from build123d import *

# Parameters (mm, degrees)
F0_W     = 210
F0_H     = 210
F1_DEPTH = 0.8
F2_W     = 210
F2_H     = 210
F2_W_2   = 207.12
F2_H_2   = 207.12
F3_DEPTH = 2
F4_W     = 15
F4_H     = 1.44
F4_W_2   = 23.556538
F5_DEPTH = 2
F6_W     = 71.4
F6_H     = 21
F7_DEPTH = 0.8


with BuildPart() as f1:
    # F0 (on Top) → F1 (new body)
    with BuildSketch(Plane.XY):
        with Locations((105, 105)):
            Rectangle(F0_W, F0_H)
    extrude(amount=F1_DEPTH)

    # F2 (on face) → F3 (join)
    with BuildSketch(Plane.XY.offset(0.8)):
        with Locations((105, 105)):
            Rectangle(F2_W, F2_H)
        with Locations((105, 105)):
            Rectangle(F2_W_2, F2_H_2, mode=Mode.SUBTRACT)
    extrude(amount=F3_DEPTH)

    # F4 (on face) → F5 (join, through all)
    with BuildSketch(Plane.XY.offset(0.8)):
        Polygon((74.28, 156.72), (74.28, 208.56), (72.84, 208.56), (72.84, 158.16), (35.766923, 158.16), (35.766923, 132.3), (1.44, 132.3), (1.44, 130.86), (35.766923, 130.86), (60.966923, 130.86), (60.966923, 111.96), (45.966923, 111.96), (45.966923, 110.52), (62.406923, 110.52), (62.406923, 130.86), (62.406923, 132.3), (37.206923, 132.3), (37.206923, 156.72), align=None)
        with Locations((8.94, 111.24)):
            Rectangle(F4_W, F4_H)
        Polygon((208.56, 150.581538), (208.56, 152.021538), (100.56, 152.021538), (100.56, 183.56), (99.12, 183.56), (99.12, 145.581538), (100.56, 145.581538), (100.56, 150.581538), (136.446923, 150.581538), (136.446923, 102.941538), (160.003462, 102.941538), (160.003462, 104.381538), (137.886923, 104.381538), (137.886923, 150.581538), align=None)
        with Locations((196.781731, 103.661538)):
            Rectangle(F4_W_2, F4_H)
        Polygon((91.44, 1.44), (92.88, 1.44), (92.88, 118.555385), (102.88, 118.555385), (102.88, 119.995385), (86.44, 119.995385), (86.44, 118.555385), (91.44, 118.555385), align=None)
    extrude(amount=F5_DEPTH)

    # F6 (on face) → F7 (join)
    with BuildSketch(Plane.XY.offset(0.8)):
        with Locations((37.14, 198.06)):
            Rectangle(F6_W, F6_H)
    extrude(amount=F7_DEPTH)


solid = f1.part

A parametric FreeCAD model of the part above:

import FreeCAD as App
import Part
import Sketcher

V = App.Vector

doc = App.newDocument("Part")
body = doc.addObject("PartDesign::Body", "Body")

# Sketch on XY plane
sketch1 = doc.addObject("Sketcher::SketchObject", "Sketch")
body.addObject(sketch1)
sketch1.AttachmentSupport = (doc.XY_Plane, [""])
sketch1.MapMode = "FlatFace"
sketch1.addGeometry([
    Part.LineSegment(V(0, 210, 0), V(0, 0, 0)),
    Part.LineSegment(V(0, 0, 0), V(210, 0, 0)),
    Part.LineSegment(V(210, 0, 0), V(210, 210, 0)),
    Part.LineSegment(V(210, 210, 0), V(0, 210, 0)),
], False)
sketch1.addConstraint([
    Sketcher.Constraint("Coincident", 0, 2, 1, 1),
    Sketcher.Constraint("Coincident", 1, 2, 2, 1),
    Sketcher.Constraint("Coincident", 2, 2, 3, 1),
    Sketcher.Constraint("Coincident", 3, 2, 0, 1),
    Sketcher.Constraint("Vertical", 0),
    Sketcher.Constraint("Horizontal", 1),
    Sketcher.Constraint("Vertical", 2),
    Sketcher.Constraint("Horizontal", 3),
    Sketcher.Constraint("Coincident", 0, 2, -1, 1),
    Sketcher.Constraint("Equal", 3, 0),
    Sketcher.Constraint("DistanceX", 1, 1, 1, 2, 210.0),
])
pad1 = doc.addObject("PartDesign::Pad", "Pad")
body.addObject(pad1)
pad1.Profile = sketch1
pad1.Length = 0.8

# Sketch on XY plane
sketch2 = doc.addObject("Sketcher::SketchObject", "Sketch001")
body.addObject(sketch2)
sketch2.AttachmentSupport = (doc.XY_Plane, [""])
sketch2.MapMode = "FlatFace"
sketch2.AttachmentOffset = App.Placement(V(0, 0, 0.8), App.Rotation())
sketch2.addGeometry([
    Part.LineSegment(V(0, 210, 0), V(0, 0, 0)),  # 0
    Part.LineSegment(V(0, 0, 0), V(210, 0, 0)),  # 1
    Part.LineSegment(V(210, 0, 0), V(210, 210, 0)),  # 2
    Part.LineSegment(V(210, 210, 0), V(0, 210, 0)),  # 3
    Part.LineSegment(V(209, 1, 0), V(1, 1, 0)),  # 4
    Part.LineSegment(V(1, 1, 0), V(1, 209, 0)),  # 5
    Part.LineSegment(V(1, 209, 0), V(209, 209, 0)),  # 6
    Part.LineSegment(V(209, 209, 0), V(209, 1, 0)),  # 7
], False)
sketch2.addConstraint([
    Sketcher.Constraint("Coincident", 0, 2, 1, 1),
    Sketcher.Constraint("Coincident", 1, 2, 2, 1),
    Sketcher.Constraint("Coincident", 2, 2, 3, 1),
    Sketcher.Constraint("Coincident", 3, 2, 0, 1),
    Sketcher.Constraint("Coincident", 4, 2, 5, 1),
    Sketcher.Constraint("Coincident", 5, 2, 6, 1),
    Sketcher.Constraint("Coincident", 6, 2, 7, 1),
    Sketcher.Constraint("Coincident", 7, 2, 4, 1),
    Sketcher.Constraint("Vertical", 0),
    Sketcher.Constraint("Horizontal", 1),
    Sketcher.Constraint("Vertical", 2),
    Sketcher.Constraint("Horizontal", 3),
    Sketcher.Constraint("Horizontal", 4),
    Sketcher.Constraint("Vertical", 5),
    Sketcher.Constraint("Horizontal", 6),
    Sketcher.Constraint("Vertical", 7),
    Sketcher.Constraint("Coincident", 0, 2, -1, 1),
    Sketcher.Constraint("Equal", 3, 0),
    Sketcher.Constraint("Equal", 6, 5),
    Sketcher.Constraint("DistanceX", 1, 1, 1, 2, 210.0),
    Sketcher.Constraint("DistanceX", 4, 2, 4, 1, 207.12),
    Sketcher.Constraint("DistanceX", -1, 1, 4, 2, 1.44),
    Sketcher.Constraint("DistanceY", -1, 1, 4, 2, 1.44),
])
pad2 = doc.addObject("PartDesign::Pad", "Pad001")
body.addObject(pad2)
pad2.Profile = sketch2
pad2.Length = 2

# Sketch on XY plane
sketch3 = doc.addObject("Sketcher::SketchObject", "Sketch002")
body.addObject(sketch3)
sketch3.AttachmentSupport = (doc.XY_Plane, [""])
sketch3.MapMode = "FlatFace"
sketch3.AttachmentOffset = App.Placement(V(0, 0, 0.8), App.Rotation())
sketch3.addGeometry([
    Part.LineSegment(V(74.3, 156.7, 0), V(74.3, 208.6, 0)),  # 0
    Part.LineSegment(V(74.3, 208.6, 0), V(72.8, 208.6, 0)),  # 1
    Part.LineSegment(V(72.8, 208.6, 0), V(72.8, 158.2, 0)),  # 2
    Part.LineSegment(V(72.8, 158.2, 0), V(35.8, 158.2, 0)),  # 3
    Part.LineSegment(V(35.8, 158.2, 0), V(35.8, 132.3, 0)),  # 4
    Part.LineSegment(V(35.8, 132.3, 0), V(1.4, 132.3, 0)),  # 5
    Part.LineSegment(V(1.4, 132.3, 0), V(1.4, 130.9, 0)),  # 6
    Part.LineSegment(V(1.4, 130.9, 0), V(61, 130.9, 0)),  # 7
    Part.LineSegment(V(61, 130.9, 0), V(61, 112, 0)),  # 8
    Part.LineSegment(V(61, 112, 0), V(46, 112, 0)),  # 9
    Part.LineSegment(V(46, 112, 0), V(46, 110.5, 0)),  # 10
    Part.LineSegment(V(46, 110.5, 0), V(62.4, 110.5, 0)),  # 11
    Part.LineSegment(V(62.4, 110.5, 0), V(62.4, 132.3, 0)),  # 12
    Part.LineSegment(V(62.4, 132.3, 0), V(37.2, 132.3, 0)),  # 13
    Part.LineSegment(V(37.2, 132.3, 0), V(37.2, 156.7, 0)),  # 14
    Part.LineSegment(V(37.2, 156.7, 0), V(74.3, 156.7, 0)),  # 15
    Part.LineSegment(V(1.4, 112, 0), V(1.4, 110.5, 0)),  # 16
    Part.LineSegment(V(1.4, 110.5, 0), V(16.4, 110.5, 0)),  # 17
    Part.LineSegment(V(16.4, 110.5, 0), V(16.4, 112, 0)),  # 18
    Part.LineSegment(V(16.4, 112, 0), V(1.4, 112, 0)),  # 19
    Part.LineSegment(V(208.6, 150.6, 0), V(208.6, 152, 0)),  # 20
    Part.LineSegment(V(208.6, 152, 0), V(100.6, 152, 0)),  # 21
    Part.LineSegment(V(100.6, 152, 0), V(100.6, 183.6, 0)),  # 22
    Part.LineSegment(V(100.6, 183.6, 0), V(99.1, 183.6, 0)),  # 23
    Part.LineSegment(V(99.1, 183.6, 0), V(99.1, 145.6, 0)),  # 24
    Part.LineSegment(V(99.1, 145.6, 0), V(100.6, 145.6, 0)),  # 25
    Part.LineSegment(V(100.6, 145.6, 0), V(100.6, 150.6, 0)),  # 26
    Part.LineSegment(V(100.6, 150.6, 0), V(136.4, 150.6, 0)),  # 27
    Part.LineSegment(V(136.4, 150.6, 0), V(136.4, 102.9, 0)),  # 28
    Part.LineSegment(V(136.4, 102.9, 0), V(160, 102.9, 0)),  # 29
    Part.LineSegment(V(160, 102.9, 0), V(160, 104.4, 0)),  # 30
    Part.LineSegment(V(160, 104.4, 0), V(137.9, 104.4, 0)),  # 31
    Part.LineSegment(V(137.9, 104.4, 0), V(137.9, 150.6, 0)),  # 32
    Part.LineSegment(V(137.9, 150.6, 0), V(208.6, 150.6, 0)),  # 33
    Part.LineSegment(V(185, 104.4, 0), V(185, 102.9, 0)),  # 34
    Part.LineSegment(V(185, 102.9, 0), V(208.6, 102.9, 0)),  # 35
    Part.LineSegment(V(208.6, 102.9, 0), V(208.6, 104.4, 0)),  # 36
    Part.LineSegment(V(208.6, 104.4, 0), V(185, 104.4, 0)),  # 37
    Part.LineSegment(V(91.4, 1.4, 0), V(92.9, 1.4, 0)),  # 38
    Part.LineSegment(V(92.9, 1.4, 0), V(92.9, 118.6, 0)),  # 39
    Part.LineSegment(V(92.9, 118.6, 0), V(102.9, 118.6, 0)),  # 40
    Part.LineSegment(V(102.9, 118.6, 0), V(102.9, 120, 0)),  # 41
    Part.LineSegment(V(102.9, 120, 0), V(86.4, 120, 0)),  # 42
    Part.LineSegment(V(86.4, 120, 0), V(86.4, 118.6, 0)),  # 43
    Part.LineSegment(V(86.4, 118.6, 0), V(91.4, 118.6, 0)),  # 44
    Part.LineSegment(V(91.4, 118.6, 0), V(91.4, 1.4, 0)),  # 45
], False)
sketch3.addConstraint([
    Sketcher.Constraint("Coincident", 0, 2, 1, 1),
    Sketcher.Constraint("Coincident", 1, 2, 2, 1),
    Sketcher.Constraint("Coincident", 2, 2, 3, 1),
    Sketcher.Constraint("Coincident", 3, 2, 4, 1),
    Sketcher.Constraint("Coincident", 4, 2, 5, 1),
    Sketcher.Constraint("Coincident", 5, 2, 6, 1),
    Sketcher.Constraint("Coincident", 6, 2, 7, 1),
    Sketcher.Constraint("Coincident", 7, 2, 8, 1),
    Sketcher.Constraint("Coincident", 8, 2, 9, 1),
    Sketcher.Constraint("Coincident", 9, 2, 10, 1),
    Sketcher.Constraint("Coincident", 10, 2, 11, 1),
    Sketcher.Constraint("Coincident", 11, 2, 12, 1),
    Sketcher.Constraint("Coincident", 12, 2, 13, 1),
    Sketcher.Constraint("Coincident", 13, 2, 14, 1),
    Sketcher.Constraint("Coincident", 14, 2, 15, 1),
    Sketcher.Constraint("Coincident", 15, 2, 0, 1),
    Sketcher.Constraint("Coincident", 16, 2, 17, 1),
    Sketcher.Constraint("Coincident", 17, 2, 18, 1),
    Sketcher.Constraint("Coincident", 18, 2, 19, 1),
    Sketcher.Constraint("Coincident", 19, 2, 16, 1),
    Sketcher.Constraint("Coincident", 20, 2, 21, 1),
    Sketcher.Constraint("Coincident", 21, 2, 22, 1),
    Sketcher.Constraint("Coincident", 22, 2, 23, 1),
    Sketcher.Constraint("Coincident", 23, 2, 24, 1),
    Sketcher.Constraint("Coincident", 24, 2, 25, 1),
    Sketcher.Constraint("Coincident", 25, 2, 26, 1),
    Sketcher.Constraint("Coincident", 26, 2, 27, 1),
    Sketcher.Constraint("Coincident", 27, 2, 28, 1),
    Sketcher.Constraint("Coincident", 28, 2, 29, 1),
    Sketcher.Constraint("Coincident", 29, 2, 30, 1),
    Sketcher.Constraint("Coincident", 30, 2, 31, 1),
    Sketcher.Constraint("Coincident", 31, 2, 32, 1),
    Sketcher.Constraint("Coincident", 32, 2, 33, 1),
    Sketcher.Constraint("Coincident", 33, 2, 20, 1),
    Sketcher.Constraint("Coincident", 34, 2, 35, 1),
    Sketcher.Constraint("Coincident", 35, 2, 36, 1),
    Sketcher.Constraint("Coincident", 36, 2, 37, 1),
    Sketcher.Constraint("Coincident", 37, 2, 34, 1),
    Sketcher.Constraint("Coincident", 38, 2, 39, 1),
    Sketcher.Constraint("Coincident", 39, 2, 40, 1),
    Sketcher.Constraint("Coincident", 40, 2, 41, 1),
    Sketcher.Constraint("Coincident", 41, 2, 42, 1),
    Sketcher.Constraint("Coincident", 42, 2, 43, 1),
    Sketcher.Constraint("Coincident", 43, 2, 44, 1),
    Sketcher.Constraint("Coincident", 44, 2, 45, 1),
    Sketcher.Constraint("Coincident", 45, 2, 38, 1),
    Sketcher.Constraint("Vertical", 0),
    Sketcher.Constraint("Horizontal", 1),
    Sketcher.Constraint("Vertical", 2),
    Sketcher.Constraint("Horizontal", 3),
    Sketcher.Constraint("Vertical", 4),
    Sketcher.Constraint("Horizontal", 5),
    Sketcher.Constraint("Vertical", 6),
    Sketcher.Constraint("Horizontal", 7),
    Sketcher.Constraint("Vertical", 8),
    Sketcher.Constraint("Horizontal", 9),
    Sketcher.Constraint("Vertical", 10),
    Sketcher.Constraint("Horizontal", 11),
    Sketcher.Constraint("Vertical", 12),
    Sketcher.Constraint("Horizontal", 13),
    Sketcher.Constraint("Vertical", 14),
    Sketcher.Constraint("Horizontal", 15),
    Sketcher.Constraint("Vertical", 16),
    Sketcher.Constraint("Horizontal", 17),
    Sketcher.Constraint("Vertical", 18),
    Sketcher.Constraint("Horizontal", 19),
    Sketcher.Constraint("Vertical", 20),
    Sketcher.Constraint("Horizontal", 21),
    Sketcher.Constraint("Vertical", 22),
    Sketcher.Constraint("Horizontal", 23),
    Sketcher.Constraint("Vertical", 24),
    Sketcher.Constraint("Horizontal", 25),
    Sketcher.Constraint("Vertical", 26),
    Sketcher.Constraint("Horizontal", 27),
    Sketcher.Constraint("Vertical", 28),
    Sketcher.Constraint("Horizontal", 29),
    Sketcher.Constraint("Vertical", 30),
    Sketcher.Constraint("Horizontal", 31),
    Sketcher.Constraint("Vertical", 32),
    Sketcher.Constraint("Horizontal", 33),
    Sketcher.Constraint("Vertical", 34),
    Sketcher.Constraint("Horizontal", 35),
    Sketcher.Constraint("Vertical", 36),
    Sketcher.Constraint("Horizontal", 37),
    Sketcher.Constraint("Horizontal", 38),
    Sketcher.Constraint("Vertical", 39),
    Sketcher.Constraint("Horizontal", 40),
    Sketcher.Constraint("Vertical", 41),
    Sketcher.Constraint("Horizontal", 42),
    Sketcher.Constraint("Vertical", 43),
    Sketcher.Constraint("Horizontal", 44),
    Sketcher.Constraint("Vertical", 45),
    Sketcher.Constraint("Horizontal", 5, 2, 12, 2),
    Sketcher.Constraint("Horizontal", 11, 2, 16, 2),
    Sketcher.Constraint("Horizontal", 9, 2, 18, 2),
    Sketcher.Constraint("Horizontal", 27, 2, 32, 2),
    Sketcher.Constraint("Horizontal", 29, 2, 34, 2),
    Sketcher.Constraint("Horizontal", 31, 2, 36, 2),
    Sketcher.Constraint("Horizontal", 40, 2, 43, 2),
    Sketcher.Constraint("Vertical", 6, 2, 16, 2),
    Sketcher.Constraint("Vertical", 22, 2, 25, 2),
    Sketcher.Constraint("Vertical", 33, 2, 35, 2),
    Sketcher.Constraint("Equal", 3, 15),
    Sketcher.Constraint("Equal", 9, 17),
    Sketcher.Constraint("Equal", 1, 23),
    Sketcher.Constraint("Equal", 29, 35),
    Sketcher.Constraint("Equal", 25, 38),
    Sketcher.Constraint("Equal", 11, 42),
    Sketcher.Constraint("Equal", 38, 6),
    Sketcher.Constraint("Equal", 6, 10),
    Sketcher.Constraint("Equal", 18, 20),
    Sketcher.Constraint("Equal", 44, 26),
    Sketcher.Constraint("Equal", 20, 30),
    Sketcher.Constraint("Equal", 36, 41),
    Sketcher.Constraint("DistanceX", 9, 2, 9, 1, 15.0),
    Sketcher.Constraint("DistanceX", 21, 2, 21, 1, 108.0),
    Sketcher.Constraint("DistanceX", 40, 1, 40, 2, 10.0),
    Sketcher.Constraint("DistanceX", 44, 1, 44, 2, 5.0),
    Sketcher.Constraint("DistanceX", 13, 2, 13, 1, 25.2),
    Sketcher.Constraint("DistanceY", 2, 2, 2, 1, 50.4),
    Sketcher.Constraint("DistanceY", 8, 2, 8, 1, 18.9),
    Sketcher.Constraint("DistanceY", 32, 1, 32, 2, 46.2),
    Sketcher.Constraint("DistanceY", 22, 2, 0, 2, 25.0),
    Sketcher.Constraint("DistanceX", 29, 2, 34, 2, 25.0),
    Sketcher.Constraint("DistanceX", 1, 2, 1, 1, 1.44),
    Sketcher.Constraint("DistanceY", 0, 1, 0, 2, 51.84),
    Sketcher.Constraint("DistanceY", 4, 2, 4, 1, 25.86),
    Sketcher.Constraint("DistanceY", -1, 1, 4, 2, 132.3),
    Sketcher.Constraint("DistanceX", 5, 2, 2, 2, 71.4),
    Sketcher.Constraint("DistanceX", -1, 1, 0, 2, 74.28),
    Sketcher.Constraint("DistanceX", -1, 1, 20, 2, 208.56),
    Sketcher.Constraint("DistanceX", -1, 1, 38, 2, 92.88),
    Sketcher.Constraint("DistanceY", -1, 1, 38, 2, 1.44),
    Sketcher.Constraint("DistanceX", 28, 2, 31, 2, 1.44),
    Sketcher.Constraint("DistanceX", 29, 1, 29, 2, 23.556539),
    Sketcher.Constraint("DistanceX", 3, 2, 3, 1, 37.073077),
    Sketcher.Constraint("DistanceY", 22, 1, 22, 2, 31.538462),
    Sketcher.Constraint("DistanceY", 39, 1, 39, 2, 117.115385),
])
pad3 = doc.addObject("PartDesign::Pad", "Pad002")
body.addObject(pad3)
pad3.Profile = sketch3
pad3.Length = 2

# Sketch on XY plane
sketch4 = doc.addObject("Sketcher::SketchObject", "Sketch003")
body.addObject(sketch4)
sketch4.AttachmentSupport = (doc.XY_Plane, [""])
sketch4.MapMode = "FlatFace"
sketch4.AttachmentOffset = App.Placement(V(0, 0, 0.8), App.Rotation())
sketch4.addGeometry([
    Part.LineSegment(V(1, 209, 0), V(1, 188, 0)),
    Part.LineSegment(V(1, 188, 0), V(73, 188, 0)),
    Part.LineSegment(V(73, 188, 0), V(73, 209, 0)),
    Part.LineSegment(V(73, 209, 0), V(1, 209, 0)),
], False)
sketch4.addConstraint([
    Sketcher.Constraint("Coincident", 0, 2, 1, 1),
    Sketcher.Constraint("Coincident", 1, 2, 2, 1),
    Sketcher.Constraint("Coincident", 2, 2, 3, 1),
    Sketcher.Constraint("Coincident", 3, 2, 0, 1),
    Sketcher.Constraint("Vertical", 0),
    Sketcher.Constraint("Horizontal", 1),
    Sketcher.Constraint("Vertical", 2),
    Sketcher.Constraint("Horizontal", 3),
    Sketcher.Constraint("DistanceY", 0, 2, 0, 1, 21.0),
    Sketcher.Constraint("DistanceX", 1, 1, 1, 2, 71.4),
    Sketcher.Constraint("DistanceX", -1, 1, 0, 2, 1.44),
    Sketcher.Constraint("DistanceY", -1, 1, 0, 2, 187.56),
])
pad4 = doc.addObject("PartDesign::Pad", "Pad003")
body.addObject(pad4)
pad4.Profile = sketch4
pad4.Length = 0.8

doc.recompute()
